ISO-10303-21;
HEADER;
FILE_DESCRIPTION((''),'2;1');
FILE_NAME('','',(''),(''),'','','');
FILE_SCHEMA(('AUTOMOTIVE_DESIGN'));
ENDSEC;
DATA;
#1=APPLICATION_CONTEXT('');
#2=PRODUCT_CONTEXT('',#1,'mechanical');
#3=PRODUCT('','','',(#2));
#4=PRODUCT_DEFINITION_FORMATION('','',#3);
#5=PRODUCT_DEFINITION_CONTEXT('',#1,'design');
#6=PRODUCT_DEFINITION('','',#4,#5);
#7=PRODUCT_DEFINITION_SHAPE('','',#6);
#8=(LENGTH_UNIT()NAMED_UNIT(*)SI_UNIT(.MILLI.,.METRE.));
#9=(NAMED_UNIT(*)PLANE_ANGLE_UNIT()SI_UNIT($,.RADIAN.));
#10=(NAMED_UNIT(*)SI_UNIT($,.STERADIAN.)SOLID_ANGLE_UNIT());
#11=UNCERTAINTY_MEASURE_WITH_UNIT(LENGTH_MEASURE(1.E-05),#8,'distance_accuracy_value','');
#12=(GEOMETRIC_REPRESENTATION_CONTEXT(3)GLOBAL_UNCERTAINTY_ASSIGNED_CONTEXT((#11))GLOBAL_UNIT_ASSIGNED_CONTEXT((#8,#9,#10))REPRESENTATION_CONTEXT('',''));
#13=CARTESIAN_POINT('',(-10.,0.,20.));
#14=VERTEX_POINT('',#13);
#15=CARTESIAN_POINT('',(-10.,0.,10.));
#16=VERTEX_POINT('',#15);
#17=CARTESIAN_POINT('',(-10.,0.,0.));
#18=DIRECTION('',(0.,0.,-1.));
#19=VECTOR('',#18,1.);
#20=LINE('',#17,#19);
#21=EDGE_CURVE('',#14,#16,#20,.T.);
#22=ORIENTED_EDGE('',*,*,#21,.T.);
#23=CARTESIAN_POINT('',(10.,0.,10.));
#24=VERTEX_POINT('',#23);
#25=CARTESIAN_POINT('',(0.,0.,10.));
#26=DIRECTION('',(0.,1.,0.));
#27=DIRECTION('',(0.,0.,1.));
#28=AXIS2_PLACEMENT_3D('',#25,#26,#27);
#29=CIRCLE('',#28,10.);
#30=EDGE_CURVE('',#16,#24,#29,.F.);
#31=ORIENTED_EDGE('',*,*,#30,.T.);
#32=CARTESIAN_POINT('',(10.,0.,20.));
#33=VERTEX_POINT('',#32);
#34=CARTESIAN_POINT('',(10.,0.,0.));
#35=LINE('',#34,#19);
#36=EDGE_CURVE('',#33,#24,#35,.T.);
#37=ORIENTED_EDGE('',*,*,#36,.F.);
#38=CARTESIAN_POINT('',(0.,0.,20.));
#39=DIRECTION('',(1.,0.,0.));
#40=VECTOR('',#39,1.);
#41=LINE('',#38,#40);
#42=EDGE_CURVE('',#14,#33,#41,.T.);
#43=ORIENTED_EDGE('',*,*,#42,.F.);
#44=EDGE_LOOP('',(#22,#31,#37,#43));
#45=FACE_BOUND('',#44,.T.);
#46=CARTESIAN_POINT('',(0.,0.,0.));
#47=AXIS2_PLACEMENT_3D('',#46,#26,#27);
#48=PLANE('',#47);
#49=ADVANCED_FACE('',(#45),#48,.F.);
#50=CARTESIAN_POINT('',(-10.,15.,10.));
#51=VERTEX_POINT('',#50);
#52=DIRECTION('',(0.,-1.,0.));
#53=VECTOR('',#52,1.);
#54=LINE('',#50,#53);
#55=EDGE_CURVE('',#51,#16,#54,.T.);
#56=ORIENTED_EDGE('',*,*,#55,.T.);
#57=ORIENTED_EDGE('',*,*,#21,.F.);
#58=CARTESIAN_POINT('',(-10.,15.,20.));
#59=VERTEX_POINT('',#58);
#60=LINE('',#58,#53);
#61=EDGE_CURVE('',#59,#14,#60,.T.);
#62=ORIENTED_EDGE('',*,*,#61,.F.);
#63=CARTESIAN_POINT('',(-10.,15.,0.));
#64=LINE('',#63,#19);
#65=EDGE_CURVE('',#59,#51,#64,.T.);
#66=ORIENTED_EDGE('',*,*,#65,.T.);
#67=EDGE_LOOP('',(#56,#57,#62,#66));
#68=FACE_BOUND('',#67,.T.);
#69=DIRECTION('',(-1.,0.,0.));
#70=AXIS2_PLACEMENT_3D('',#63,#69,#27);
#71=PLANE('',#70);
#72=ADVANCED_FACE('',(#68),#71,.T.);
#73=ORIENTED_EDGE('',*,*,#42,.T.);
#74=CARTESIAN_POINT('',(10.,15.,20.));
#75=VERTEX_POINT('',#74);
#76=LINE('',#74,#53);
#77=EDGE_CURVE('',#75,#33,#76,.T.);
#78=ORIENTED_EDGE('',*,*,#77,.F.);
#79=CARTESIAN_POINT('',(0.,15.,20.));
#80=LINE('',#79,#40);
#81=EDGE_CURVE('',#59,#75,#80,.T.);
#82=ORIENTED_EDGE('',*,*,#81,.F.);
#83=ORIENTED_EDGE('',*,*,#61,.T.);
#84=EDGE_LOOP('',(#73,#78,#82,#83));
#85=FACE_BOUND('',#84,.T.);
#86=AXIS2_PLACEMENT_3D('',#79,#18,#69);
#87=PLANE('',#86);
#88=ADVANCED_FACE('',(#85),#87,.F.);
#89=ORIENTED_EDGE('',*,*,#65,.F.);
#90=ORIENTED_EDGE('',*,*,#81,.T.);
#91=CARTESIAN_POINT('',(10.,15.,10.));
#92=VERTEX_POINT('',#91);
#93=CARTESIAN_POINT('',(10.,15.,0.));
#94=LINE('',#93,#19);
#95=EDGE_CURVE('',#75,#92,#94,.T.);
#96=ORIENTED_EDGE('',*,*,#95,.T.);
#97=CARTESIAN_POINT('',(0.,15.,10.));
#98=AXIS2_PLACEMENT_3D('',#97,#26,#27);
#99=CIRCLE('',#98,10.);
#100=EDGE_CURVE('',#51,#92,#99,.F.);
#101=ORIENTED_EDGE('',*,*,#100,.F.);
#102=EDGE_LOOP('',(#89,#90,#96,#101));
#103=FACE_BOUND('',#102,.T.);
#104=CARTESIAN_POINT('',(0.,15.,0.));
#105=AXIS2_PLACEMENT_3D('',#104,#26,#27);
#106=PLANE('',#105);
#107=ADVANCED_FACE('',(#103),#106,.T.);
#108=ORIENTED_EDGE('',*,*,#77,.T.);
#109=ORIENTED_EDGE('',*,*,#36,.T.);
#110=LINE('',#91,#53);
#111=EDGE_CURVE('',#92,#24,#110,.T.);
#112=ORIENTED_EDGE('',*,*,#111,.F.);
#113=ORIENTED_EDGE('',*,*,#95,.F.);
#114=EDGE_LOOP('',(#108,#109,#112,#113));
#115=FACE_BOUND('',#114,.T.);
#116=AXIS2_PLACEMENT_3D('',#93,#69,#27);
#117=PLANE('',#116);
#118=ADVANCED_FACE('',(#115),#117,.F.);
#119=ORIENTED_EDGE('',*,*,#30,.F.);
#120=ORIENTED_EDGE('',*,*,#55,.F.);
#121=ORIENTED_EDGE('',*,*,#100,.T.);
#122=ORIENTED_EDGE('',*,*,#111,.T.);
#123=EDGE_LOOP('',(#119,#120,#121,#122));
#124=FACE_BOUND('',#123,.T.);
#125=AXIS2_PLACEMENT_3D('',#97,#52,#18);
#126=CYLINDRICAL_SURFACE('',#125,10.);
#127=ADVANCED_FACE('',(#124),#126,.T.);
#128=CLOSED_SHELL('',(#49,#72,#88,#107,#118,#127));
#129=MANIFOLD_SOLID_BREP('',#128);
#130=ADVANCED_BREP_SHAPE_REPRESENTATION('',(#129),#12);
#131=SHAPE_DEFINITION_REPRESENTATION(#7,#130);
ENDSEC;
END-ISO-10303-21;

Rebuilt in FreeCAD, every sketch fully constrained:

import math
import FreeCAD as App
import Part
import Sketcher

V = App.Vector

doc = App.newDocument("Part")
body = doc.addObject("PartDesign::Body", "Body")

# Sketch on XZ plane
sketch1 = body.newObject("Sketcher::SketchObject", "Sketch")
sketch1.AttachmentSupport = (doc.getObject("XZ_Plane"), [""])
sketch1.MapMode = "FlatFace"
sketch1.addGeometry(Part.ArcOfCircle(Part.Circle(V(0, 10, 0), V(0, 0, 1), 10), math.radians(-90), math.radians(0)), False)
sketch1.addGeometry(Part.ArcOfCircle(Part.Circle(V(0, 10, 0), V(0, 0, 1), 10), math.radians(180), math.radians(270)), False)
sketch1.addGeometry(Part.LineSegment(V(-10, 10, 0), V(-10, 20, 0)), False)
sketch1.addGeometry(Part.LineSegment(V(-10, 20, 0), V(10, 20, 0)), False)
sketch1.addGeometry(Part.LineSegment(V(10, 20, 0), V(10, 10, 0)), False)
sketch1.addConstraint(Sketcher.Constraint("Tangent", 0, 1, 1, 2))
sketch1.addConstraint(Sketcher.Constraint("Tangent", 1, 1, 2, 1))
sketch1.addConstraint(Sketcher.Constraint("Coincident", 2, 2, 3, 1))
sketch1.addConstraint(Sketcher.Constraint("Coincident", 3, 2, 4, 1))
sketch1.addConstraint(Sketcher.Constraint("Tangent", 4, 2, 0, 2))
sketch1.addConstraint(Sketcher.Constraint("Vertical", 2))
sketch1.addConstraint(Sketcher.Constraint("Horizontal", 3))
sketch1.addConstraint(Sketcher.Constraint("Vertical", 4))
sketch1.addConstraint(Sketcher.Constraint("Coincident", 0, 1, -1, 1))
sketch1.addConstraint(Sketcher.Constraint("Equal", 0, 1))
sketch1.addConstraint(Sketcher.Constraint("PointOnObject", 0, 3, -2))
sketch1.addConstraint(Sketcher.Constraint("Radius", 0, 10.0))
sketch1.addConstraint(Sketcher.Constraint("DistanceY", 2, 1, 2, 2, 10.0))
pad1 = body.newObject("PartDesign::Pad", "Pad")
pad1.Profile = sketch1
pad1.Length = 15
pad1.Reversed = True

doc.recompute()
